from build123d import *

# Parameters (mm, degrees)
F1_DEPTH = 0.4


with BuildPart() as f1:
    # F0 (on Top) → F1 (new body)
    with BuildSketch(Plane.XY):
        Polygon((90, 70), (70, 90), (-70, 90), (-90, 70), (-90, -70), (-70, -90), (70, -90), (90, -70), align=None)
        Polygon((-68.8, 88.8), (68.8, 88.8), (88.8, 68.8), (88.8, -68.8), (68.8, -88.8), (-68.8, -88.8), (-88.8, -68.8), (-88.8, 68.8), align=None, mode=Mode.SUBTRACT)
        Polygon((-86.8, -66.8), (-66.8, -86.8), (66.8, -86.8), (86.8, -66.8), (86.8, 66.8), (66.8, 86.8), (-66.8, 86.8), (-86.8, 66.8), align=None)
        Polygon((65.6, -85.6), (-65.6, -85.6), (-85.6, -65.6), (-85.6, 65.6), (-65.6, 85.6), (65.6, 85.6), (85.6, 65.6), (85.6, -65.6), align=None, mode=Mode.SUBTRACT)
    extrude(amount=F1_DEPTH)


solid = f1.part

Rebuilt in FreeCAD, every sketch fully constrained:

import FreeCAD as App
import Part
import Sketcher

V = App.Vector

doc = App.newDocument("Part")
params = doc.addObject("Spreadsheet::Sheet", "Params")
for row, (alias, value) in enumerate([
    ("sketch1_width", "140 mm"),
    ("sketch1_width2", "137.6 mm"),
    ("sketch1_width3", "133.6 mm"),
    ("sketch1_width4", "131.2 mm"),
    ("pad1_length", "0.4 mm"),
], start=1):
    params.set(f"A{row}", alias)
    params.set(f"B{row}", "=" + value)
    params.setAlias(f"B{row}", alias)

body = doc.addObject("PartDesign::Body", "Body")
body.AllowCompound = True

sketch1 = body.newObject("Sketcher::SketchObject", "Sketch")
sketch1.AttachmentSupport = (doc.getObject("XY_Plane"), [""])
sketch1.MapMode = "FlatFace"
sketch1.addGeometry(Part.LineSegment(V(90, 70, 0), V(70, 90, 0)), False)
sketch1.addGeometry(Part.LineSegment(V(70, 90, 0), V(-70, 90, 0)), False)
sketch1.addGeometry(Part.LineSegment(V(-70, 90, 0), V(-90, 70, 0)), False)
sketch1.addGeometry(Part.LineSegment(V(-90, 70, 0), V(-90, -70, 0)), False)
sketch1.addGeometry(Part.LineSegment(V(-90, -70, 0), V(-70, -90, 0)), False)
sketch1.addGeometry(Part.LineSegment(V(-70, -90, 0), V(70, -90, 0)), False)
sketch1.addGeometry(Part.LineSegment(V(70, -90, 0), V(90, -70, 0)), False)
sketch1.addGeometry(Part.LineSegment(V(90, -70, 0), V(90, 70, 0)), False)
sketch1.addGeometry(Part.LineSegment(V(-89, 69, 0), V(-69, 89, 0)), False)
sketch1.addGeometry(Part.LineSegment(V(-69, 89, 0), V(69, 89, 0)), False)
sketch1.addGeometry(Part.LineSegment(V(69, 89, 0), V(89, 69, 0)), False)
sketch1.addGeometry(Part.LineSegment(V(89, 69, 0), V(89, -69, 0)), False)
sketch1.addGeometry(Part.LineSegment(V(89, -69, 0), V(69, -89, 0)), False)
sketch1.addGeometry(Part.LineSegment(V(69, -89, 0), V(-69, -89, 0)), False)
sketch1.addGeometry(Part.LineSegment(V(-69, -89, 0), V(-89, -69, 0)), False)
sketch1.addGeometry(Part.LineSegment(V(-89, -69, 0), V(-89, 69, 0)), False)
sketch1.addGeometry(Part.LineSegment(V(-87, -67, 0), V(-67, -87, 0)), False)
sketch1.addGeometry(Part.LineSegment(V(-67, -87, 0), V(67, -87, 0)), False)
sketch1.addGeometry(Part.LineSegment(V(67, -87, 0), V(87, -67, 0)), False)
sketch1.addGeometry(Part.LineSegment(V(87, -67, 0), V(87, 67, 0)), False)
sketch1.addGeometry(Part.LineSegment(V(87, 67, 0), V(67, 87, 0)), False)
sketch1.addGeometry(Part.LineSegment(V(67, 87, 0), V(-67, 87, 0)), False)
sketch1.addGeometry(Part.LineSegment(V(-67, 87, 0), V(-87, 67, 0)), False)
sketch1.addGeometry(Part.LineSegment(V(-87, 67, 0), V(-87, -67, 0)), False)
sketch1.addGeometry(Part.LineSegment(V(86, -66, 0), V(66, -86, 0)), False)
sketch1.addGeometry(Part.LineSegment(V(66, -86, 0), V(-66, -86, 0)), False)
sketch1.addGeometry(Part.LineSegment(V(-66, -86, 0), V(-86, -66, 0)), False)
sketch1.addGeometry(Part.LineSegment(V(-86, -66, 0), V(-86, 66, 0)), False)
sketch1.addGeometry(Part.LineSegment(V(-86, 66, 0), V(-66, 86, 0)), False)
sketch1.addGeometry(Part.LineSegment(V(-66, 86, 0), V(66, 86, 0)), False)
sketch1.addGeometry(Part.LineSegment(V(66, 86, 0), V(86, 66, 0)), False)
sketch1.addGeometry(Part.LineSegment(V(86, 66, 0), V(86, -66, 0)), False)
sketch1.addConstraint(Sketcher.Constraint("Coincident", 0, 2, 1, 1))
sketch1.addConstraint(Sketcher.Constraint("Coincident", 1, 2, 2, 1))
sketch1.addConstraint(Sketcher.Constraint("Coincident", 2, 2, 3, 1))
sketch1.addConstraint(Sketcher.Constraint("Coincident", 3, 2, 4, 1))
sketch1.addConstraint(Sketcher.Constraint("Coincident", 4, 2, 5, 1))
sketch1.addConstraint(Sketcher.Constraint("Coincident", 5, 2, 6, 1))
sketch1.addConstraint(Sketcher.Constraint("Coincident", 6, 2, 7, 1))
sketch1.addConstraint(Sketcher.Constraint("Coincident", 7, 2, 0, 1))
sketch1.addConstraint(Sketcher.Constraint("Coincident", 8, 2, 9, 1))
sketch1.addConstraint(Sketcher.Constraint("Coincident", 9, 2, 10, 1))
sketch1.addConstraint(Sketcher.Constraint("Coincident", 10, 2, 11, 1))
sketch1.addConstraint(Sketcher.Constraint("Coincident", 11, 2, 12, 1))
sketch1.addConstraint(Sketcher.Constraint("Coincident", 12, 2, 13, 1))
sketch1.addConstraint(Sketcher.Constraint("Coincident", 13, 2, 14, 1))
sketch1.addConstraint(Sketcher.Constraint("Coincident", 14, 2, 15, 1))
sketch1.addConstraint(Sketcher.Constraint("Coincident", 15, 2, 8, 1))
sketch1.addConstraint(Sketcher.Constraint("Coincident", 16, 2, 17, 1))
sketch1.addConstraint(Sketcher.Constraint("Coincident", 17, 2, 18, 1))
sketch1.addConstraint(Sketcher.Constraint("Coincident", 18, 2, 19, 1))
sketch1.addConstraint(Sketcher.Constraint("Coincident", 19, 2, 20, 1))
sketch1.addConstraint(Sketcher.Constraint("Coincident", 20, 2, 21, 1))
sketch1.addConstraint(Sketcher.Constraint("Coincident", 21, 2, 22, 1))
sketch1.addConstraint(Sketcher.Constraint("Coincident", 22, 2, 23, 1))
sketch1.addConstraint(Sketcher.Constraint("Coincident", 23, 2, 16, 1))
sketch1.addConstraint(Sketcher.Constraint("Coincident", 24, 2, 25, 1))
sketch1.addConstraint(Sketcher.Constraint("Coincident", 25, 2, 26, 1))
sketch1.addConstraint(Sketcher.Constraint("Coincident", 26, 2, 27, 1))
sketch1.addConstraint(Sketcher.Constraint("Coincident", 27, 2, 28, 1))
sketch1.addConstraint(Sketcher.Constraint("Coincident", 28, 2, 29, 1))
sketch1.addConstraint(Sketcher.Constraint("Coincident", 29, 2, 30, 1))
sketch1.addConstraint(Sketcher.Constraint("Coincident", 30, 2, 31, 1))
sketch1.addConstraint(Sketcher.Constraint("Coincident", 31, 2, 24, 1))
sketch1.addConstraint(Sketcher.Constraint("Horizontal", 1))
sketch1.addConstraint(Sketcher.Constraint("Vertical", 3))
sketch1.addConstraint(Sketcher.Constraint("Horizontal", 5))
sketch1.addConstraint(Sketcher.Constraint("Vertical", 7))
sketch1.addConstraint(Sketcher.Constraint("Horizontal", 9))
sketch1.addConstraint(Sketcher.Constraint("Vertical", 11))
sketch1.addConstraint(Sketcher.Constraint("Horizontal", 13))
sketch1.addConstraint(Sketcher.Constraint("Vertical", 15))
sketch1.addConstraint(Sketcher.Constraint("Horizontal", 17))
sketch1.addConstraint(Sketcher.Constraint("Vertical", 19))
sketch1.addConstraint(Sketcher.Constraint("Horizontal", 21))
sketch1.addConstraint(Sketcher.Constraint("Vertical", 23))
sketch1.addConstraint(Sketcher.Constraint("Horizontal", 25))
sketch1.addConstraint(Sketcher.Constraint("Vertical", 27))
sketch1.addConstraint(Sketcher.Constraint("Horizontal", 29))
sketch1.addConstraint(Sketcher.Constraint("Vertical", 31))
sketch1.addConstraint(Sketcher.Constraint("Symmetric", 0, 2, 4, 2, -1, 1))
sketch1.addConstraint(Sketcher.Constraint("Symmetric", 2, 2, 6, 2, -1, 1))
sketch1.addConstraint(Sketcher.Constraint("Symmetric", 8, 2, 12, 2, -1, 1))
sketch1.addConstraint(Sketcher.Constraint("Symmetric", 10, 2, 14, 2, -1, 1))
sketch1.addConstraint(Sketcher.Constraint("Symmetric", 16, 2, 20, 2, -1, 1))
sketch1.addConstraint(Sketcher.Constraint("Symmetric", 18, 2, 22, 2, -1, 1))
sketch1.addConstraint(Sketcher.Constraint("Symmetric", 24, 2, 28, 2, -1, 1))
sketch1.addConstraint(Sketcher.Constraint("Symmetric", 26, 2, 30, 2, -1, 1))
sketch1.addConstraint(Sketcher.Constraint("Perpendicular", 0, 2))
sketch1.addConstraint(Sketcher.Constraint("Perpendicular", 2, 4))
sketch1.addConstraint(Sketcher.Constraint("Perpendicular", 4, 6))
sketch1.addConstraint(Sketcher.Constraint("Parallel", 6, 8))
sketch1.addConstraint(Sketcher.Constraint("Perpendicular", 8, 10))
sketch1.addConstraint(Sketcher.Constraint("Perpendicular", 10, 12))
sketch1.addConstraint(Sketcher.Constraint("Perpendicular", 12, 14))
sketch1.addConstraint(Sketcher.Constraint("Parallel", 14, 16))
sketch1.addConstraint(Sketcher.Constraint("Perpendicular", 16, 18))
sketch1.addConstraint(Sketcher.Constraint("Perpendicular", 18, 20))
sketch1.addConstraint(Sketcher.Constraint("Perpendicular", 20, 22))
sketch1.addConstraint(Sketcher.Constraint("Parallel", 22, 24))
sketch1.addConstraint(Sketcher.Constraint("Perpendicular", 24, 26))
sketch1.addConstraint(Sketcher.Constraint("Perpendicular", 26, 28))
sketch1.addConstraint(Sketcher.Constraint("Perpendicular", 28, 30))
sketch1.addConstraint(Sketcher.Constraint("Horizontal", 3, 2, 6, 2))
sketch1.addConstraint(Sketcher.Constraint("Horizontal", 11, 2, 14, 2))
sketch1.addConstraint(Sketcher.Constraint("Horizontal", 19, 2, 22, 2))
sketch1.addConstraint(Sketcher.Constraint("Horizontal", 27, 2, 30, 2))
sketch1.addConstraint(Sketcher.Constraint("Vertical", 1, 2, 4, 2))
sketch1.addConstraint(Sketcher.Constraint("Equal", 5, 3))
sketch1.addConstraint(Sketcher.Constraint("Equal", 13, 11))
sketch1.addConstraint(Sketcher.Constraint("Equal", 21, 19))
sketch1.addConstraint(Sketcher.Constraint("Equal", 29, 27))
sketch1.addConstraint(Sketcher.Constraint("Equal", 6, 8))
sketch1.addConstraint(Sketcher.Constraint("Equal", 14, 16))
sketch1.addConstraint(Sketcher.Constraint("Equal", 22, 24))
sketch1.addConstraint(Sketcher.Constraint("DistanceX", 1, 2, 1, 1, 140.0))
sketch1.addConstraint(Sketcher.Constraint("DistanceX", 9, 1, 9, 2, 137.6))
sketch1.addConstraint(Sketcher.Constraint("DistanceX", 17, 1, 17, 2, 133.6))
sketch1.addConstraint(Sketcher.Constraint("DistanceX", 25, 2, 25, 1, 131.2))
sketch1.addConstraint(Sketcher.Constraint("DistanceY", -1, 1, 0, 2, 90.0))
sketch1.setExpression("Constraints[83]", "Params.sketch1_width")
sketch1.setExpression("Constraints[84]", "Params.sketch1_width2")
sketch1.setExpression("Constraints[85]", "Params.sketch1_width3")
sketch1.setExpression("Constraints[86]", "Params.sketch1_width4")
pad1 = body.newObject("PartDesign::Pad", "Pad")
pad1.Profile = sketch1
pad1.setExpression("Length", "Params.pad1_length")

doc.recompute()
